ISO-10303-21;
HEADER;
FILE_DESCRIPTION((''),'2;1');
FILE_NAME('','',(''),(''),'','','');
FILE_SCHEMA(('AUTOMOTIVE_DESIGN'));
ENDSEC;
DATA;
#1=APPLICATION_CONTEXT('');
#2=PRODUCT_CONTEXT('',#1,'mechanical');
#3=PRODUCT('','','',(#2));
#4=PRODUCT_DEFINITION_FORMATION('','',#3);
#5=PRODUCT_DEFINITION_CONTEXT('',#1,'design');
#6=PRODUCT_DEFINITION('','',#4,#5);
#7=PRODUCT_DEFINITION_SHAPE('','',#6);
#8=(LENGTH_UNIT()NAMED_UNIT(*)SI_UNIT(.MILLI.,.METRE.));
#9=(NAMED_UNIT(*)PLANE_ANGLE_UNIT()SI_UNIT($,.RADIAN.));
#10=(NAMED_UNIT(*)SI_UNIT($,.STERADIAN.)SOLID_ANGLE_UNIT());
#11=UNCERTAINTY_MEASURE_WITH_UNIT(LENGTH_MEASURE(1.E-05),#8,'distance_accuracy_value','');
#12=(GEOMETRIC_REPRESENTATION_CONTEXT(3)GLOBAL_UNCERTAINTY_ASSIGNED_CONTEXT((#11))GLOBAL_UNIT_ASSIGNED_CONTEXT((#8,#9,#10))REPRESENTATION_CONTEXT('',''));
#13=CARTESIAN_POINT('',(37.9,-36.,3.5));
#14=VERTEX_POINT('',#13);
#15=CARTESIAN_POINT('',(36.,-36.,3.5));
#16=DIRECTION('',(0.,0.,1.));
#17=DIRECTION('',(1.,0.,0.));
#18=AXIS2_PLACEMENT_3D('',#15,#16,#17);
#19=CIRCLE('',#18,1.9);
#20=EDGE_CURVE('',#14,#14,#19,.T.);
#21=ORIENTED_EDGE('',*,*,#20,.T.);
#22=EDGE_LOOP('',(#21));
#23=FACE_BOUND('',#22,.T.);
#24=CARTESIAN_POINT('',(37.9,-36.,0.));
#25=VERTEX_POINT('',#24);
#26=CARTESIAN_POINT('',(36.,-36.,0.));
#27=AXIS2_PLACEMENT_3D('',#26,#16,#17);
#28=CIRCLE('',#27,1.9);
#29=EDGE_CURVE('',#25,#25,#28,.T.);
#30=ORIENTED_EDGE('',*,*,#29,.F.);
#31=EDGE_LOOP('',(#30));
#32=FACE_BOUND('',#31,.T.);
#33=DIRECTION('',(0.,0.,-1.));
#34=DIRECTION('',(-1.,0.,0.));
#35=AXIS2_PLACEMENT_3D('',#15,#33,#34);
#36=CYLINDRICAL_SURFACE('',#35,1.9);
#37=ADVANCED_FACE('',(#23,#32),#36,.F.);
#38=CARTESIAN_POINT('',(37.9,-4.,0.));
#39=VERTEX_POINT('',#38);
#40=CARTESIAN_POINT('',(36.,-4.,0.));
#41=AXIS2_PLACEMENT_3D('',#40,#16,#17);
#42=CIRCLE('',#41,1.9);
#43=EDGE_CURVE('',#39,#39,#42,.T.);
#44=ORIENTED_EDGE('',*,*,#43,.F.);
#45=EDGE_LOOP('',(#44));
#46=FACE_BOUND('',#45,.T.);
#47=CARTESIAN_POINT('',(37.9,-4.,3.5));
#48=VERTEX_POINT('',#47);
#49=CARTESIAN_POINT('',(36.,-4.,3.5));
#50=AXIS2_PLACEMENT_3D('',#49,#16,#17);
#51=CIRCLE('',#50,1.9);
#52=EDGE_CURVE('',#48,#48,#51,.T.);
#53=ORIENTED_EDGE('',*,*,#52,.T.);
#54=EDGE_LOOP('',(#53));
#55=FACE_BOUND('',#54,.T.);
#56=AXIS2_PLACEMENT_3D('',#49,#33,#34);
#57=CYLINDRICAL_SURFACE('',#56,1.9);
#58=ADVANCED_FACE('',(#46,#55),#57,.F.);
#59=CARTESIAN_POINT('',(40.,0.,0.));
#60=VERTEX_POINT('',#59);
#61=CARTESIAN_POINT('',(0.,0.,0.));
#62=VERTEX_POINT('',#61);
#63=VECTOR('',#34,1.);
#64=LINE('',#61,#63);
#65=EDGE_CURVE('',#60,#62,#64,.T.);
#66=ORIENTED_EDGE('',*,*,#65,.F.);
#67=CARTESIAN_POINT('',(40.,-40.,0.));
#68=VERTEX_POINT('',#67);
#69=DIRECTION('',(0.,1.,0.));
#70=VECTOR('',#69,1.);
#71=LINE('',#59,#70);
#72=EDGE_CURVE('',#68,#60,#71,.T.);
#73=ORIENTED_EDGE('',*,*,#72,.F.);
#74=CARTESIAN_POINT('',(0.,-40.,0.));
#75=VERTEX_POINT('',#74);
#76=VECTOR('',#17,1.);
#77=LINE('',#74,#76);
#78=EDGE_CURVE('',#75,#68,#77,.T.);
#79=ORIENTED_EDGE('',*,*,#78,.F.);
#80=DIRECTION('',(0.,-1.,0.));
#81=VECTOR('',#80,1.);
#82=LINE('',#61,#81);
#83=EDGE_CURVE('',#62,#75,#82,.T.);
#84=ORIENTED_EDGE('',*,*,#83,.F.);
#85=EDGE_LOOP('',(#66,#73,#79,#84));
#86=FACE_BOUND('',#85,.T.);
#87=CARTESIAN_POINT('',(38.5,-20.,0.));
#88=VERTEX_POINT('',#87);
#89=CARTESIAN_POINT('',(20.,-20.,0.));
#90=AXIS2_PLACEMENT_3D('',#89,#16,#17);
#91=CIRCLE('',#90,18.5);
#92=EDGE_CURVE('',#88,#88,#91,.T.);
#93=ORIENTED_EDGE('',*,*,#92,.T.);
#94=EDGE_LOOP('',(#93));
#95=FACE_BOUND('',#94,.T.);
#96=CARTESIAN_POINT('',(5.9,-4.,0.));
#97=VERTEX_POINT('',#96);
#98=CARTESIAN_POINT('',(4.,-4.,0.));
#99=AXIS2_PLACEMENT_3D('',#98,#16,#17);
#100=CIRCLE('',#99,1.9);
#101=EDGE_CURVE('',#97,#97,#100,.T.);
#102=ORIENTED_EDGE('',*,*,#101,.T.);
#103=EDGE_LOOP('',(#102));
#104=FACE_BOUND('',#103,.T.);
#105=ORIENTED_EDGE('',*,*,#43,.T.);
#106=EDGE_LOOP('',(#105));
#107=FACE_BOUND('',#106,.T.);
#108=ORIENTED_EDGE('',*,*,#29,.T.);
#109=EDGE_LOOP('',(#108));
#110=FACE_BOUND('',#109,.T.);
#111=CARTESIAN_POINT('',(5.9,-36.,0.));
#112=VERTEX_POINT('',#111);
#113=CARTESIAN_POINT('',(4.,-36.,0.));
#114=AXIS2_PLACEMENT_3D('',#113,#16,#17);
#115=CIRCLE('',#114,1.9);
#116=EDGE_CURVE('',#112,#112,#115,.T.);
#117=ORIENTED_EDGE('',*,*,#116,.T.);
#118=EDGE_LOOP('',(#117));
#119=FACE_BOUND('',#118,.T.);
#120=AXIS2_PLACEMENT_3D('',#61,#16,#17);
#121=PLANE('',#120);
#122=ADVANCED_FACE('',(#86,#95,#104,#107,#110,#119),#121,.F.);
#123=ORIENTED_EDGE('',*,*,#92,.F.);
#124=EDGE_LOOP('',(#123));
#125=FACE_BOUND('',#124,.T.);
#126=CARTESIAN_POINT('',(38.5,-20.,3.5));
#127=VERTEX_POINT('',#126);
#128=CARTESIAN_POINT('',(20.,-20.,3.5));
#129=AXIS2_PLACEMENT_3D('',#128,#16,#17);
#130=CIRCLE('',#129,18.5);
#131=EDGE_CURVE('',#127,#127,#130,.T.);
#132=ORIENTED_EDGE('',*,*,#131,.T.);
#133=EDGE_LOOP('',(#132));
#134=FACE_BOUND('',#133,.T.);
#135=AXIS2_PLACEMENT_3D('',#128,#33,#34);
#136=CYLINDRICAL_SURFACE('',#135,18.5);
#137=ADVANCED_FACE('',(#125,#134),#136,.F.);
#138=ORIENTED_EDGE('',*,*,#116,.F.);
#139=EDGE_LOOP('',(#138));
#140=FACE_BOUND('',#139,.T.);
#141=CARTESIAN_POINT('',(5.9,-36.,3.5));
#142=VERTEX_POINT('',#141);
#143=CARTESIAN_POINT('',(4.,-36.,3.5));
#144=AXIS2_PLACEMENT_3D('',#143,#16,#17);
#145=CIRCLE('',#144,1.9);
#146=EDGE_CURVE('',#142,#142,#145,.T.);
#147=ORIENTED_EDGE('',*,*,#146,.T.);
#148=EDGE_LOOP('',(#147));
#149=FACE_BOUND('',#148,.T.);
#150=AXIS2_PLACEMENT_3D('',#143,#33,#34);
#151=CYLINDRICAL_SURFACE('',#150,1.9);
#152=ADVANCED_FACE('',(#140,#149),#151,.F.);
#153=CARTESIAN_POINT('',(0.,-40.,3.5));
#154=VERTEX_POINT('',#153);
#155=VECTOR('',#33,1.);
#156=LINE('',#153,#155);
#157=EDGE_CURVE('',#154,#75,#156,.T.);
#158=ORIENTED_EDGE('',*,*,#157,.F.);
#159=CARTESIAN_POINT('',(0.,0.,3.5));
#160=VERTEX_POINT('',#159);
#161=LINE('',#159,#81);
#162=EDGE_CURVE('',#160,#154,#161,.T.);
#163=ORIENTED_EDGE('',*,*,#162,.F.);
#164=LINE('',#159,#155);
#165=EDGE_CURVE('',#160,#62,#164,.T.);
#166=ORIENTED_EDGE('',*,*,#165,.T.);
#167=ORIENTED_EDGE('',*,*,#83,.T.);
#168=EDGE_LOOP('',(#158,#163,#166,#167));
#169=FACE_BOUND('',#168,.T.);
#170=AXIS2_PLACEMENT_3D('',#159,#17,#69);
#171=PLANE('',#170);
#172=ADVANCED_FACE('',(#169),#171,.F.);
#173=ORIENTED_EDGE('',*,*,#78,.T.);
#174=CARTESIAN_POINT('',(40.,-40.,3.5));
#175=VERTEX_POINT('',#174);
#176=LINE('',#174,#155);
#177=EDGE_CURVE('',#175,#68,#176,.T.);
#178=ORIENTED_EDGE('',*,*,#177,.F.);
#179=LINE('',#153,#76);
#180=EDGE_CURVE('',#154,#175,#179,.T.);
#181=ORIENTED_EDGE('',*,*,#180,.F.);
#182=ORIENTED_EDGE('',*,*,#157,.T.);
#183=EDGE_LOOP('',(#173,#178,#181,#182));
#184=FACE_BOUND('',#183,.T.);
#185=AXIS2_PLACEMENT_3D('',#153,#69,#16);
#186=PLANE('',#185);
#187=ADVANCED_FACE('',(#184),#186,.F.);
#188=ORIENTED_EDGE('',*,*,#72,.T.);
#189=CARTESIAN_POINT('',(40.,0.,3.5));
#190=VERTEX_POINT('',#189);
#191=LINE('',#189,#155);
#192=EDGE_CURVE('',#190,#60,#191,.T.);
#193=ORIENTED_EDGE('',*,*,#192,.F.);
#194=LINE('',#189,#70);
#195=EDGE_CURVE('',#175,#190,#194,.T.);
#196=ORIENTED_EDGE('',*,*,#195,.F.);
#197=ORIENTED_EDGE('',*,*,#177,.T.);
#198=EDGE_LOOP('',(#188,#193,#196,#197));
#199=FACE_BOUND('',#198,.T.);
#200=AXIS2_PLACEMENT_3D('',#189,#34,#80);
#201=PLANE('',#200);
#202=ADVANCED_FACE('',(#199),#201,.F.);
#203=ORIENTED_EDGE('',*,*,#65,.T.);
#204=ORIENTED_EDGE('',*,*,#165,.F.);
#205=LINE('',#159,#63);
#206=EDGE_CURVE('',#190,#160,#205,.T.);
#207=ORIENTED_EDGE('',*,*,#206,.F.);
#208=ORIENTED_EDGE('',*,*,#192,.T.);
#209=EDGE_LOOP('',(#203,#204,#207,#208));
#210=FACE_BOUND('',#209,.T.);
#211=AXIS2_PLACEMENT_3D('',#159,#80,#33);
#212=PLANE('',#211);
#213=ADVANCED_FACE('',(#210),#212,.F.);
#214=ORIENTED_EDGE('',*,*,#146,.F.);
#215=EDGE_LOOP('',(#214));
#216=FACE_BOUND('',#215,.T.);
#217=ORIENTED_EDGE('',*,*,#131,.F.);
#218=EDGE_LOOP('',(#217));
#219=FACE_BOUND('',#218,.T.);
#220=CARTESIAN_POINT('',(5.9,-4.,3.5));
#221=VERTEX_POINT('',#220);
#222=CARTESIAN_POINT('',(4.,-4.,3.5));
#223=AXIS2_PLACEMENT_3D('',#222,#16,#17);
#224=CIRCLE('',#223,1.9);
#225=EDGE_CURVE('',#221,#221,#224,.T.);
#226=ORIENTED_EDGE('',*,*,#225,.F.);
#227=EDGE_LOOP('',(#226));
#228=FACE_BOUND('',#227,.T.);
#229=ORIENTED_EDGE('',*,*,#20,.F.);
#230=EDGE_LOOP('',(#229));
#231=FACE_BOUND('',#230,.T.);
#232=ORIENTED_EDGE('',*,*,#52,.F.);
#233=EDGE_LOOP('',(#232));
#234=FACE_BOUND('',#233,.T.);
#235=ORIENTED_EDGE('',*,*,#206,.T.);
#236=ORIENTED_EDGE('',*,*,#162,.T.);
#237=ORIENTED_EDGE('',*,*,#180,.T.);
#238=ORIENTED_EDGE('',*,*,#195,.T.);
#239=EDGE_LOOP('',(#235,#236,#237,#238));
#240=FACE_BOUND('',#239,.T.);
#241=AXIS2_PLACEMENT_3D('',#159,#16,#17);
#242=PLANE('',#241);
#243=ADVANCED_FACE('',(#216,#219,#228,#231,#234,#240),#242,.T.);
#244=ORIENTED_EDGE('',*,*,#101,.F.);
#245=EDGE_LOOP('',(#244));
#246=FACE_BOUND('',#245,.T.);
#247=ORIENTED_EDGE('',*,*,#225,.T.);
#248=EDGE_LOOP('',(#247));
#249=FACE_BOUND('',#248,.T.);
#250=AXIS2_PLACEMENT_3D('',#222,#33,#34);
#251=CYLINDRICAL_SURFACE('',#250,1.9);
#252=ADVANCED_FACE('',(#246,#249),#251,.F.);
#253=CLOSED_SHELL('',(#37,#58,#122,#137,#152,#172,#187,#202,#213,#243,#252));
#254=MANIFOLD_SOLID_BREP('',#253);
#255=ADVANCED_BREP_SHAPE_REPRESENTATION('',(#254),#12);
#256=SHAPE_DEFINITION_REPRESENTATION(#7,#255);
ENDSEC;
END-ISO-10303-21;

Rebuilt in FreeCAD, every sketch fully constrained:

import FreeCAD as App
import Part
import Sketcher

V = App.Vector
Q = App.Units.Quantity

doc = App.newDocument("Part")
body = doc.addObject("PartDesign::Body", "Body")

# Sketch on XY plane
sketch1 = body.newObject("Sketcher::SketchObject", "Sketch")
sketch1.AttachmentSupport = (doc.getObject("XY_Plane"), [""])
sketch1.MapMode = "FlatFace"
sketch1.addGeometry([
    Part.LineSegment(V(0, 0, 0), V(0, -40, 0)),  # 0
    Part.LineSegment(V(0, -40, 0), V(40, -40, 0)),  # 1
    Part.LineSegment(V(40, -40, 0), V(40, 0, 0)),  # 2
    Part.LineSegment(V(40, 0, 0), V(0, 0, 0)),  # 3
    Part.Circle(V(4, -36, 0), V(0, 0, 1), 1.9),  # 4
    Part.Circle(V(36, -36, 0), V(0, 0, 1), 1.9),  # 5
    Part.Circle(V(4, -4, 0), V(0, 0, 1), 1.9),  # 6
    Part.Circle(V(20, -20, 0), V(0, 0, 1), 18.5),  # 7
    Part.Circle(V(36, -4, 0), V(0, 0, 1), 1.9),  # 8
], False)
sketch1.addConstraint([
    Sketcher.Constraint("Coincident", 0, 2, 1, 1),
    Sketcher.Constraint("Coincident", 1, 2, 2, 1),
    Sketcher.Constraint("Coincident", 2, 2, 3, 1),
    Sketcher.Constraint("Coincident", 3, 2, 0, 1),
    Sketcher.Constraint("Vertical", 0),
    Sketcher.Constraint("Horizontal", 1),
    Sketcher.Constraint("Vertical", 2),
    Sketcher.Constraint("Horizontal", 3),
    Sketcher.Constraint("Coincident", 3, 2, -1, 1),
    Sketcher.Constraint("Equal", 4, 5),
    Sketcher.Constraint("Equal", 5, 6),
    Sketcher.Constraint("Equal", 6, 8),
    Sketcher.Constraint("Horizontal", 4, 3, 5, 3),
    Sketcher.Constraint("Horizontal", 6, 3, 8, 3),
    Sketcher.Constraint("Vertical", 4, 3, 6, 3),
    Sketcher.Constraint("Vertical", 5, 3, 8, 3),
    Sketcher.Constraint("Equal", 3, 0),
    Sketcher.Constraint("Diameter", 7, Q("37 mm")),
    Sketcher.Constraint("Diameter", 4, Q("3.8 mm")),
    Sketcher.Constraint("DistanceX", 1, 1, 1, 2, Q("40 mm")),
    Sketcher.Constraint("DistanceX", -1, 1, 4, 3, Q("4 mm")),
    Sketcher.Constraint("DistanceY", 4, 3, -1, 1, Q("36 mm")),
    Sketcher.Constraint("DistanceX", -1, 1, 5, 3, Q("36 mm")),
    Sketcher.Constraint("DistanceY", 6, 3, -1, 1, Q("4 mm")),
    Sketcher.Constraint("DistanceX", -1, 1, 7, 3, Q("20 mm")),
    Sketcher.Constraint("DistanceY", 7, 3, -1, 1, Q("20 mm")),
])
pad1 = body.newObject("PartDesign::Pad", "Pad")
pad1.Profile = sketch1
pad1.Length = 3.5

doc.recompute()
